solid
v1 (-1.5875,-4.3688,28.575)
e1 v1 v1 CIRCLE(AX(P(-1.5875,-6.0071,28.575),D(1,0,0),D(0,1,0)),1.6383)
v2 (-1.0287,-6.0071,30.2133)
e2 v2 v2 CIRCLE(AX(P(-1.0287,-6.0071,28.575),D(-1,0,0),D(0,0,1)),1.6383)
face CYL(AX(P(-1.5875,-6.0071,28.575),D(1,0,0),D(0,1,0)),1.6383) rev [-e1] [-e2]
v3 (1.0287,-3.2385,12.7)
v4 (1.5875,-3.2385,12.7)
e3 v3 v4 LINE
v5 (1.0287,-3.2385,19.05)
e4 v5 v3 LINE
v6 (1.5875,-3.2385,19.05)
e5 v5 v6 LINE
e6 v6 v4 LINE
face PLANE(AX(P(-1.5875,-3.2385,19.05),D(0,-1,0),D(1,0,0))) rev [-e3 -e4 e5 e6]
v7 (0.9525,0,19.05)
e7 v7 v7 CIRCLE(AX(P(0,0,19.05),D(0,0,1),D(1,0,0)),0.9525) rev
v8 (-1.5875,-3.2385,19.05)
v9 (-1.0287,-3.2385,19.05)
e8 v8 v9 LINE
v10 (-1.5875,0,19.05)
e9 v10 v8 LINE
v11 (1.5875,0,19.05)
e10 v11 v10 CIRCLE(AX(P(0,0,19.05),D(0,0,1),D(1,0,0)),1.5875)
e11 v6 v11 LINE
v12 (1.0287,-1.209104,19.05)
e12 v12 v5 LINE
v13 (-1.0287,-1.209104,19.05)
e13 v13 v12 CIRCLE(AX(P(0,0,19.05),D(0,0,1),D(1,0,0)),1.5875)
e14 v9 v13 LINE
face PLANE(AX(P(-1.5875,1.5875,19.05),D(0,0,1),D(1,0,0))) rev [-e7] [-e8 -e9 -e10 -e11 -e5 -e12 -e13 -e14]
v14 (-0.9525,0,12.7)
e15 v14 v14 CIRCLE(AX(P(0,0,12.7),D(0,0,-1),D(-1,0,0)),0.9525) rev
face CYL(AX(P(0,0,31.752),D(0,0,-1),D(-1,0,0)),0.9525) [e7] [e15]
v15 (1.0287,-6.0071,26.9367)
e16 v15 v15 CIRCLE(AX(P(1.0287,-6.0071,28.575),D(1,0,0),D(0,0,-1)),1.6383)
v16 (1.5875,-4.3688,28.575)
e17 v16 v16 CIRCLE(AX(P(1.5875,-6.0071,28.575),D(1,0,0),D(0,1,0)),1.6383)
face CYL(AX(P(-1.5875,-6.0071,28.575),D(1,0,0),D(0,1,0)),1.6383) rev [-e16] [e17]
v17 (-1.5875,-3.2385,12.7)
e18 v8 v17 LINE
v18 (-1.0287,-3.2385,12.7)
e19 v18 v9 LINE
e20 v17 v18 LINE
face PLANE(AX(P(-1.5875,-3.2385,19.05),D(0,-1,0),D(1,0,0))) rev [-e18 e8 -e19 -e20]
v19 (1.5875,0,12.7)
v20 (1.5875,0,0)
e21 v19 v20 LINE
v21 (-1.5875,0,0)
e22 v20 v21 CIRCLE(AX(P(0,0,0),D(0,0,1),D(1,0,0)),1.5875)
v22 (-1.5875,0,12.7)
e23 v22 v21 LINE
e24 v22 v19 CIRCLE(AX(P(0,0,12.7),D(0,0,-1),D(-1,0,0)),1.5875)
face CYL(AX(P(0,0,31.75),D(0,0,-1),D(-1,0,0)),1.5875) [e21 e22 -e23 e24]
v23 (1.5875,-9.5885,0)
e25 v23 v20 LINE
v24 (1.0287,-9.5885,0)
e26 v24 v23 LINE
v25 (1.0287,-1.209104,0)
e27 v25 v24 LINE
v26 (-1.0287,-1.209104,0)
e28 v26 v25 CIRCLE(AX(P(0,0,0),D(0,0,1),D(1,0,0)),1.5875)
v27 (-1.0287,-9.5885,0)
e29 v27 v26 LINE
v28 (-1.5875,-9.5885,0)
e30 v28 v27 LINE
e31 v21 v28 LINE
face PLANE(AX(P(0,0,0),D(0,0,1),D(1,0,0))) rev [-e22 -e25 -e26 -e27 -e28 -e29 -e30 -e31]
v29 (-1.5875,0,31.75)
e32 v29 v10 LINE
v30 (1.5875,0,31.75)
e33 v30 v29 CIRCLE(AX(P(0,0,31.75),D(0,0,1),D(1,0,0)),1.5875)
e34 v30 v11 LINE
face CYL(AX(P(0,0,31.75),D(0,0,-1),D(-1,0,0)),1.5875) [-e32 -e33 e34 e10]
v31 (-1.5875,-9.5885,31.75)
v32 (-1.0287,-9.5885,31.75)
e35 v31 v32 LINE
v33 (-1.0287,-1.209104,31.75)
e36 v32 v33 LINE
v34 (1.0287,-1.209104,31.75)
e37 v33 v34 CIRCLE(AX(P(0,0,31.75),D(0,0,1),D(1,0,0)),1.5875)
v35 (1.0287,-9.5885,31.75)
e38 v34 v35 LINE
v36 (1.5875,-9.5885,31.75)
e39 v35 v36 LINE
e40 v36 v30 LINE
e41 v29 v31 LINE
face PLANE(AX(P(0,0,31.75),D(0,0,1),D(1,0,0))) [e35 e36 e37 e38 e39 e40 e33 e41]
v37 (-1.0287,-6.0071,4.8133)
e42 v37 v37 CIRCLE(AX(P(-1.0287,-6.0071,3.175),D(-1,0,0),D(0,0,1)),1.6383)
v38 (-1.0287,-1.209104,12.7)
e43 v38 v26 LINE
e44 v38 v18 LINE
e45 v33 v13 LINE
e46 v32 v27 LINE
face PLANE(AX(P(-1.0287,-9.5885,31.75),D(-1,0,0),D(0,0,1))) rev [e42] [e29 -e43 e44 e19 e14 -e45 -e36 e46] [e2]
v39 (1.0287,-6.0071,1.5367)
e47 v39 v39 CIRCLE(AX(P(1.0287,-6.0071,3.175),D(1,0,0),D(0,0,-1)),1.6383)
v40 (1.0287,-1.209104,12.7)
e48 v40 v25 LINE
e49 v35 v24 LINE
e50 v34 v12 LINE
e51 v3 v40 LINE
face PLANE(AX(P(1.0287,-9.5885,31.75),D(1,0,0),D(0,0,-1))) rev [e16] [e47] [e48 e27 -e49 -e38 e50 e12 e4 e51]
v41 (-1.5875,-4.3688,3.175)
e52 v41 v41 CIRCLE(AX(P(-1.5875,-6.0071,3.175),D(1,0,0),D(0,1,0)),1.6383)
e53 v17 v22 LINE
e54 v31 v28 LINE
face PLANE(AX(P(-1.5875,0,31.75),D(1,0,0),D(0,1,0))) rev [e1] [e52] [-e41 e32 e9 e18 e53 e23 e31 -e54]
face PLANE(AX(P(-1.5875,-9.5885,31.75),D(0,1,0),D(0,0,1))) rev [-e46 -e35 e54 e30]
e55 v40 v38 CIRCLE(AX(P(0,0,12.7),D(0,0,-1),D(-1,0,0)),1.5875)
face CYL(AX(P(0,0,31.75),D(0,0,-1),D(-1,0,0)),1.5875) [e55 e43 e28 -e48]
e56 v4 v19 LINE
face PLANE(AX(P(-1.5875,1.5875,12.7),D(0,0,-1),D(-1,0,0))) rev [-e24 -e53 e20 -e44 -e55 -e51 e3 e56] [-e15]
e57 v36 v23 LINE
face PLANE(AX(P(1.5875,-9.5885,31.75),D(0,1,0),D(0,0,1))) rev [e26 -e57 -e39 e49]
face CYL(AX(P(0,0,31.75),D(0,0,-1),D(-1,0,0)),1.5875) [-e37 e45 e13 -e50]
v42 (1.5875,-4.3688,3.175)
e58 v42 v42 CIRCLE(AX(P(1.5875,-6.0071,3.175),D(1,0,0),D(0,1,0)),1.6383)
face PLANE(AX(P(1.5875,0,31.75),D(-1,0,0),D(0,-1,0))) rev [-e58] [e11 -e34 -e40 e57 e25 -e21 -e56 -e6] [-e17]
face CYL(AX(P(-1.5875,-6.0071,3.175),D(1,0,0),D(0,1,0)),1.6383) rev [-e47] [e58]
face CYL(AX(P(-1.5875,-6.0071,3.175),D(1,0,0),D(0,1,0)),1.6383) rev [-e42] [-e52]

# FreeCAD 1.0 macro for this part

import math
import FreeCAD as App
import Part
import Sketcher
Q = App.Units.Quantity


def add_polygon(sketch, points):
    """Adds a closed chain of lines whose ends are joined by coincident constraints."""
    first, n = sketch.GeometryCount, len(points)
    for a, b in zip(points, points[1:] + points[:1]):
        sketch.addGeometry(Part.LineSegment(App.Vector(*a, 0), App.Vector(*b, 0)), False)
    for i in range(n):
        sketch.addConstraint(Sketcher.Constraint("Coincident", first + i, 2, first + (i + 1) % n, 1))

doc = App.newDocument("Part")
body = doc.addObject("PartDesign::Body", "Body")

sketch1 = body.newObject("Sketcher::SketchObject", "Sketch")
sketch1.AttachmentSupport = (doc.getObject("XY_Plane"), [""])
sketch1.MapMode = "FlatFace"
sketch1.addGeometry([
    Part.LineSegment(App.Vector(1.6, -9.6, 0), App.Vector(1.6, 0, 0)),
    Part.ArcOfCircle(Part.Circle(App.Vector(0, 0, 0), App.Vector(0, 0, 1), 1.6), math.radians(0), math.radians(180)),
    Part.LineSegment(App.Vector(-1.6, 0, 0), App.Vector(-1.6, -9.6, 0)),
    Part.LineSegment(App.Vector(-1.6, -9.6, 0), App.Vector(-1, -9.6, 0)),
    Part.LineSegment(App.Vector(-1, -9.6, 0), App.Vector(-1, -1.2, 0)),
    Part.ArcOfCircle(Part.Circle(App.Vector(0, 0, 0), App.Vector(0, 0, 1), 1.6), math.radians(-130), math.radians(-50)),
    Part.LineSegment(App.Vector(1, -1.2, 0), App.Vector(1, -9.6, 0)),
    Part.LineSegment(App.Vector(1, -9.6, 0), App.Vector(1.6, -9.6, 0)),
], False)
sketch1.addConstraint([
    Sketcher.Constraint("Tangent", 0, 2, 1, 1),
    Sketcher.Constraint("Tangent", 1, 2, 2, 1),
    Sketcher.Constraint("Coincident", 2, 2, 3, 1),
    Sketcher.Constraint("Coincident", 3, 2, 4, 1),
    Sketcher.Constraint("Coincident", 4, 2, 5, 1),
    Sketcher.Constraint("Coincident", 5, 2, 6, 1),
    Sketcher.Constraint("Coincident", 6, 2, 7, 1),
    Sketcher.Constraint("Coincident", 7, 2, 0, 1),
    Sketcher.Constraint("Vertical", 0),
    Sketcher.Constraint("Vertical", 2),
    Sketcher.Constraint("Horizontal", 3),
    Sketcher.Constraint("Vertical", 4),
    Sketcher.Constraint("Vertical", 6),
    Sketcher.Constraint("Horizontal", 7),
    Sketcher.Constraint("Coincident", 1, 3, -1, 1),
    Sketcher.Constraint("Coincident", 5, 3, -1, 1),
    Sketcher.Constraint("Equal", 1, 5),
    Sketcher.Constraint("Symmetric", 3, 2, 6, 2, -2),
    Sketcher.Constraint("Radius", 1, Q("0.0625 in")),
    Sketcher.Constraint("DistanceX", 3, 1, 3, 2, Q("0.022 in")),
    Sketcher.Constraint("DistanceY", 0, 1, 0, 2, Q("0.3775 in")),
])
pad1 = body.newObject("PartDesign::Pad", "Pad")
pad1.Profile = sketch1
pad1.Length = Q("1.25 in")

sketch2 = body.newObject("Sketcher::SketchObject", "Sketch001")
sketch2.AttachmentSupport = (doc.getObject("YZ_Plane"), [""])
sketch2.MapMode = "FlatFace"
sketch2.AttachmentOffset = App.Placement(App.Vector(0, 0, 0.0625 * 25.4), App.Rotation())
sketch2.addGeometry(Part.Circle(App.Vector(-6, 28.6, 0), App.Vector(0, 0, 1), 1.6), False)
sketch2.addGeometry(Part.Circle(App.Vector(-6, 3.2, 0), App.Vector(0, 0, 1), 1.6), False)
add_polygon(sketch2, [(1.6, 19.1), (-3.2, 19.1), (-3.2, 12.7), (1.6, 12.7)])
sketch2.addConstraint([
    Sketcher.Constraint("Horizontal", 2),
    Sketcher.Constraint("Vertical", 3),
    Sketcher.Constraint("Horizontal", 4),
    Sketcher.Constraint("Vertical", 5),
    Sketcher.Constraint("Equal", 0, 1),
    Sketcher.Constraint("Vertical", 0, 3, 1, 3),
    Sketcher.Constraint("Diameter", 0, Q("0.129 in")),
    Sketcher.Constraint("DistanceY", 1, 3, 0, 3, Q("1 in")),
    Sketcher.Constraint("DistanceX", 2, 2, 2, 1, Q("0.19 in")),
    Sketcher.Constraint("DistanceY", 3, 2, 3, 1, Q("0.25 in")),
    Sketcher.Constraint("DistanceY", -1, 1, 3, 2, Q("0.5 in")),
    Sketcher.Constraint("DistanceY", -1, 1, 0, 3, Q("1.125 in")),
    Sketcher.Constraint("DistanceX", -1, 1, 4, 2, Q("0.0625 in")),
    Sketcher.Constraint("DistanceX", 0, 3, 2, 2, Q("0.109 in")),
])
pocket1 = body.newObject("PartDesign::Pocket", "Pocket")
pocket1.Profile = sketch2
pocket1.Type = "ThroughAll"

sketch3 = body.newObject("Sketcher::SketchObject", "Sketch002")
sketch3.AttachmentSupport = (doc.getObject("XY_Plane"), [""])
sketch3.MapMode = "FlatFace"
sketch3.AttachmentOffset = App.Placement(App.Vector(0, 0, 0.5 * 25.4), App.Rotation())
sketch3.addGeometry(Part.Circle(App.Vector(0, 0, 0), App.Vector(0, 0, 1), 1), False)
sketch3.addConstraint([
    Sketcher.Constraint("Coincident", 0, 3, -1, 1),
    Sketcher.Constraint("Diameter", 0, Q("0.075 in")),
])
pad2 = body.newObject("PartDesign::Pad", "Pad001")
pad2.Profile = sketch3
pad2.Type = "UpToFirst"

doc.recompute()
